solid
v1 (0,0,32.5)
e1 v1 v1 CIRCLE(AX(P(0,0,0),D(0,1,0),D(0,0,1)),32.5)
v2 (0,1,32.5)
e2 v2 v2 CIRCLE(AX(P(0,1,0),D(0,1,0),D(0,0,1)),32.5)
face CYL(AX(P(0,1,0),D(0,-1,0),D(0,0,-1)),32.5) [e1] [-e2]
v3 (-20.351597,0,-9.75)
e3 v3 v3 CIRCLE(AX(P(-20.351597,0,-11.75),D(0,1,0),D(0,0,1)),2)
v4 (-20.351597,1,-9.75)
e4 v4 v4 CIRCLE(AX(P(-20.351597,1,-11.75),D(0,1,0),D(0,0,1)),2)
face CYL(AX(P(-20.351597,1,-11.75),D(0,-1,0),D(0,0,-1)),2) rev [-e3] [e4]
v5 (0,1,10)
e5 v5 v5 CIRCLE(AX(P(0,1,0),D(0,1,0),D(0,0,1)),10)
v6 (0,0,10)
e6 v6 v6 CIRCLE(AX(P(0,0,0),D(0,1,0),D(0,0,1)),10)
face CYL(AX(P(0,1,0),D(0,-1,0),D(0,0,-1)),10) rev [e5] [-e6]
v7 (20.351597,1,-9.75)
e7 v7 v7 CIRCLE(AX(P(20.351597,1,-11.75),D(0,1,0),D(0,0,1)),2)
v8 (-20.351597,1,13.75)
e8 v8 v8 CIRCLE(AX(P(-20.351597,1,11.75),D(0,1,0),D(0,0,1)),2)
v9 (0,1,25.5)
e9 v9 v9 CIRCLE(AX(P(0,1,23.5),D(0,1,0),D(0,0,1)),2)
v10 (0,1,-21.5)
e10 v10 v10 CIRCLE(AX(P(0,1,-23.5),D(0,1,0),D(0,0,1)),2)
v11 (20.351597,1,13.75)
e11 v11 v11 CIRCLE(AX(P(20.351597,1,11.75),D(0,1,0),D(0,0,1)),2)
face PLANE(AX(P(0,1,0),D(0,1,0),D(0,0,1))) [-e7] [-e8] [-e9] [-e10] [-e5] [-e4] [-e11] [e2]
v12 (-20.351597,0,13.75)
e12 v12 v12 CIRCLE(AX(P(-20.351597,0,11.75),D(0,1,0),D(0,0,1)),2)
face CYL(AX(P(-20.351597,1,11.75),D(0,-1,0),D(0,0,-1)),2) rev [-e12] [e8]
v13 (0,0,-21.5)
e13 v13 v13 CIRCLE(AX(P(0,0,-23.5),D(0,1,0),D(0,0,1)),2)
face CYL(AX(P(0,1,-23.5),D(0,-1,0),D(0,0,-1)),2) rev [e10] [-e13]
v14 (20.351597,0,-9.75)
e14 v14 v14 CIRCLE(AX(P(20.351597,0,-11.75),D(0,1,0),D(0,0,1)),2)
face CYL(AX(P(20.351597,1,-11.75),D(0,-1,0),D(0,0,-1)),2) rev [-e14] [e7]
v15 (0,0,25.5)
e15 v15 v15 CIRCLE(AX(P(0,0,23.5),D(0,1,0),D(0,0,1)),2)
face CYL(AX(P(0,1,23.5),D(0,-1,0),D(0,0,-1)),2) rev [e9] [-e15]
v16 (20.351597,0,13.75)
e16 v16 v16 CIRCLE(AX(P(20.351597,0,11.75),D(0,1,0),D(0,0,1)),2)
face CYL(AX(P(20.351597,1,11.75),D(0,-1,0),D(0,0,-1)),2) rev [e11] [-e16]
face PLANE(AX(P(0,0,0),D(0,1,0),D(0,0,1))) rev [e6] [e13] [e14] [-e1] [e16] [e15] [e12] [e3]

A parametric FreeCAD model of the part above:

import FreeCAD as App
import Part
import Sketcher

V = App.Vector

doc = App.newDocument("Part")
params = doc.addObject("Spreadsheet::Sheet", "Params")
for row, (alias, value) in enumerate([
    ("sketch1_diameter", "65 mm"),
    ("sketch1_diameter2", "4 mm"),
    ("sketch1_diameter3", "20 mm"),
    ("pad1_length", "1 mm"),
], start=1):
    params.set(f"A{row}", alias)
    params.set(f"B{row}", "=" + value)
    params.setAlias(f"B{row}", alias)

body = doc.addObject("PartDesign::Body", "Body")

# Sketch on XZ plane
sketch1 = doc.addObject("Sketcher::SketchObject", "Sketch")
body.addObject(sketch1)
sketch1.AttachmentSupport = (doc.XZ_Plane, [""])
sketch1.MapMode = "FlatFace"
sketch1.addGeometry([
    Part.Circle(V(0, 0, 0), V(0, 0, 1), 32.5),  # 0
    Part.Circle(V(-20.4, 11.8, 0), V(0, 0, 1), 2),  # 1
    Part.Circle(V(0, 23.5, 0), V(0, 0, 1), 2),  # 2
    Part.Circle(V(20.4, 11.8, 0), V(0, 0, 1), 2),  # 3
    Part.Circle(V(-20.4, -11.8, 0), V(0, 0, 1), 2),  # 4
    Part.Circle(V(0, 0, 0), V(0, 0, 1), 10),  # 5
    Part.Circle(V(20.4, -11.8, 0), V(0, 0, 1), 2),  # 6
    Part.Circle(V(0, -23.5, 0), V(0, 0, 1), 2),  # 7
], False)
sketch1.addConstraint([
    Sketcher.Constraint("Coincident", 0, 3, -1, 1),
    Sketcher.Constraint("Coincident", 5, 3, -1, 1),
    Sketcher.Constraint("Equal", 1, 2),
    Sketcher.Constraint("Equal", 2, 3),
    Sketcher.Constraint("Equal", 3, 4),
    Sketcher.Constraint("Equal", 4, 6),
    Sketcher.Constraint("Equal", 6, 7),
    Sketcher.Constraint("Symmetric", 3, 3, 4, 3, -1, 1),
    Sketcher.Constraint("Symmetric", 1, 3, 6, 3, -1, 1),
    Sketcher.Constraint("Symmetric", 2, 3, 7, 3, -1, 1),
    Sketcher.Constraint("Symmetric", 1, 3, 3, 3, -2),
    Sketcher.Constraint("PointOnObject", 2, 3, -2),
    Sketcher.Constraint("Diameter", 0, 65.0),
    Sketcher.Constraint("Diameter", 1, 4.0),
    Sketcher.Constraint("Diameter", 5, 20.0),
    Sketcher.Constraint("DistanceY", -1, 1, 2, 3, 23.5),
    Sketcher.Constraint("DistanceY", 4, 3, 1, 3, 23.5),
    Sketcher.Constraint("DistanceX", 1, 3, -1, 1, 20.351597),
])
sketch1.setExpression("Constraints[12]", "Params.sketch1_diameter")
sketch1.setExpression("Constraints[13]", "Params.sketch1_diameter2")
sketch1.setExpression("Constraints[14]", "Params.sketch1_diameter3")
pad1 = doc.addObject("PartDesign::Pad", "Pad")
body.addObject(pad1)
pad1.Profile = sketch1
pad1.setExpression("Length", "Params.pad1_length")
pad1.Reversed = True

doc.recompute()
